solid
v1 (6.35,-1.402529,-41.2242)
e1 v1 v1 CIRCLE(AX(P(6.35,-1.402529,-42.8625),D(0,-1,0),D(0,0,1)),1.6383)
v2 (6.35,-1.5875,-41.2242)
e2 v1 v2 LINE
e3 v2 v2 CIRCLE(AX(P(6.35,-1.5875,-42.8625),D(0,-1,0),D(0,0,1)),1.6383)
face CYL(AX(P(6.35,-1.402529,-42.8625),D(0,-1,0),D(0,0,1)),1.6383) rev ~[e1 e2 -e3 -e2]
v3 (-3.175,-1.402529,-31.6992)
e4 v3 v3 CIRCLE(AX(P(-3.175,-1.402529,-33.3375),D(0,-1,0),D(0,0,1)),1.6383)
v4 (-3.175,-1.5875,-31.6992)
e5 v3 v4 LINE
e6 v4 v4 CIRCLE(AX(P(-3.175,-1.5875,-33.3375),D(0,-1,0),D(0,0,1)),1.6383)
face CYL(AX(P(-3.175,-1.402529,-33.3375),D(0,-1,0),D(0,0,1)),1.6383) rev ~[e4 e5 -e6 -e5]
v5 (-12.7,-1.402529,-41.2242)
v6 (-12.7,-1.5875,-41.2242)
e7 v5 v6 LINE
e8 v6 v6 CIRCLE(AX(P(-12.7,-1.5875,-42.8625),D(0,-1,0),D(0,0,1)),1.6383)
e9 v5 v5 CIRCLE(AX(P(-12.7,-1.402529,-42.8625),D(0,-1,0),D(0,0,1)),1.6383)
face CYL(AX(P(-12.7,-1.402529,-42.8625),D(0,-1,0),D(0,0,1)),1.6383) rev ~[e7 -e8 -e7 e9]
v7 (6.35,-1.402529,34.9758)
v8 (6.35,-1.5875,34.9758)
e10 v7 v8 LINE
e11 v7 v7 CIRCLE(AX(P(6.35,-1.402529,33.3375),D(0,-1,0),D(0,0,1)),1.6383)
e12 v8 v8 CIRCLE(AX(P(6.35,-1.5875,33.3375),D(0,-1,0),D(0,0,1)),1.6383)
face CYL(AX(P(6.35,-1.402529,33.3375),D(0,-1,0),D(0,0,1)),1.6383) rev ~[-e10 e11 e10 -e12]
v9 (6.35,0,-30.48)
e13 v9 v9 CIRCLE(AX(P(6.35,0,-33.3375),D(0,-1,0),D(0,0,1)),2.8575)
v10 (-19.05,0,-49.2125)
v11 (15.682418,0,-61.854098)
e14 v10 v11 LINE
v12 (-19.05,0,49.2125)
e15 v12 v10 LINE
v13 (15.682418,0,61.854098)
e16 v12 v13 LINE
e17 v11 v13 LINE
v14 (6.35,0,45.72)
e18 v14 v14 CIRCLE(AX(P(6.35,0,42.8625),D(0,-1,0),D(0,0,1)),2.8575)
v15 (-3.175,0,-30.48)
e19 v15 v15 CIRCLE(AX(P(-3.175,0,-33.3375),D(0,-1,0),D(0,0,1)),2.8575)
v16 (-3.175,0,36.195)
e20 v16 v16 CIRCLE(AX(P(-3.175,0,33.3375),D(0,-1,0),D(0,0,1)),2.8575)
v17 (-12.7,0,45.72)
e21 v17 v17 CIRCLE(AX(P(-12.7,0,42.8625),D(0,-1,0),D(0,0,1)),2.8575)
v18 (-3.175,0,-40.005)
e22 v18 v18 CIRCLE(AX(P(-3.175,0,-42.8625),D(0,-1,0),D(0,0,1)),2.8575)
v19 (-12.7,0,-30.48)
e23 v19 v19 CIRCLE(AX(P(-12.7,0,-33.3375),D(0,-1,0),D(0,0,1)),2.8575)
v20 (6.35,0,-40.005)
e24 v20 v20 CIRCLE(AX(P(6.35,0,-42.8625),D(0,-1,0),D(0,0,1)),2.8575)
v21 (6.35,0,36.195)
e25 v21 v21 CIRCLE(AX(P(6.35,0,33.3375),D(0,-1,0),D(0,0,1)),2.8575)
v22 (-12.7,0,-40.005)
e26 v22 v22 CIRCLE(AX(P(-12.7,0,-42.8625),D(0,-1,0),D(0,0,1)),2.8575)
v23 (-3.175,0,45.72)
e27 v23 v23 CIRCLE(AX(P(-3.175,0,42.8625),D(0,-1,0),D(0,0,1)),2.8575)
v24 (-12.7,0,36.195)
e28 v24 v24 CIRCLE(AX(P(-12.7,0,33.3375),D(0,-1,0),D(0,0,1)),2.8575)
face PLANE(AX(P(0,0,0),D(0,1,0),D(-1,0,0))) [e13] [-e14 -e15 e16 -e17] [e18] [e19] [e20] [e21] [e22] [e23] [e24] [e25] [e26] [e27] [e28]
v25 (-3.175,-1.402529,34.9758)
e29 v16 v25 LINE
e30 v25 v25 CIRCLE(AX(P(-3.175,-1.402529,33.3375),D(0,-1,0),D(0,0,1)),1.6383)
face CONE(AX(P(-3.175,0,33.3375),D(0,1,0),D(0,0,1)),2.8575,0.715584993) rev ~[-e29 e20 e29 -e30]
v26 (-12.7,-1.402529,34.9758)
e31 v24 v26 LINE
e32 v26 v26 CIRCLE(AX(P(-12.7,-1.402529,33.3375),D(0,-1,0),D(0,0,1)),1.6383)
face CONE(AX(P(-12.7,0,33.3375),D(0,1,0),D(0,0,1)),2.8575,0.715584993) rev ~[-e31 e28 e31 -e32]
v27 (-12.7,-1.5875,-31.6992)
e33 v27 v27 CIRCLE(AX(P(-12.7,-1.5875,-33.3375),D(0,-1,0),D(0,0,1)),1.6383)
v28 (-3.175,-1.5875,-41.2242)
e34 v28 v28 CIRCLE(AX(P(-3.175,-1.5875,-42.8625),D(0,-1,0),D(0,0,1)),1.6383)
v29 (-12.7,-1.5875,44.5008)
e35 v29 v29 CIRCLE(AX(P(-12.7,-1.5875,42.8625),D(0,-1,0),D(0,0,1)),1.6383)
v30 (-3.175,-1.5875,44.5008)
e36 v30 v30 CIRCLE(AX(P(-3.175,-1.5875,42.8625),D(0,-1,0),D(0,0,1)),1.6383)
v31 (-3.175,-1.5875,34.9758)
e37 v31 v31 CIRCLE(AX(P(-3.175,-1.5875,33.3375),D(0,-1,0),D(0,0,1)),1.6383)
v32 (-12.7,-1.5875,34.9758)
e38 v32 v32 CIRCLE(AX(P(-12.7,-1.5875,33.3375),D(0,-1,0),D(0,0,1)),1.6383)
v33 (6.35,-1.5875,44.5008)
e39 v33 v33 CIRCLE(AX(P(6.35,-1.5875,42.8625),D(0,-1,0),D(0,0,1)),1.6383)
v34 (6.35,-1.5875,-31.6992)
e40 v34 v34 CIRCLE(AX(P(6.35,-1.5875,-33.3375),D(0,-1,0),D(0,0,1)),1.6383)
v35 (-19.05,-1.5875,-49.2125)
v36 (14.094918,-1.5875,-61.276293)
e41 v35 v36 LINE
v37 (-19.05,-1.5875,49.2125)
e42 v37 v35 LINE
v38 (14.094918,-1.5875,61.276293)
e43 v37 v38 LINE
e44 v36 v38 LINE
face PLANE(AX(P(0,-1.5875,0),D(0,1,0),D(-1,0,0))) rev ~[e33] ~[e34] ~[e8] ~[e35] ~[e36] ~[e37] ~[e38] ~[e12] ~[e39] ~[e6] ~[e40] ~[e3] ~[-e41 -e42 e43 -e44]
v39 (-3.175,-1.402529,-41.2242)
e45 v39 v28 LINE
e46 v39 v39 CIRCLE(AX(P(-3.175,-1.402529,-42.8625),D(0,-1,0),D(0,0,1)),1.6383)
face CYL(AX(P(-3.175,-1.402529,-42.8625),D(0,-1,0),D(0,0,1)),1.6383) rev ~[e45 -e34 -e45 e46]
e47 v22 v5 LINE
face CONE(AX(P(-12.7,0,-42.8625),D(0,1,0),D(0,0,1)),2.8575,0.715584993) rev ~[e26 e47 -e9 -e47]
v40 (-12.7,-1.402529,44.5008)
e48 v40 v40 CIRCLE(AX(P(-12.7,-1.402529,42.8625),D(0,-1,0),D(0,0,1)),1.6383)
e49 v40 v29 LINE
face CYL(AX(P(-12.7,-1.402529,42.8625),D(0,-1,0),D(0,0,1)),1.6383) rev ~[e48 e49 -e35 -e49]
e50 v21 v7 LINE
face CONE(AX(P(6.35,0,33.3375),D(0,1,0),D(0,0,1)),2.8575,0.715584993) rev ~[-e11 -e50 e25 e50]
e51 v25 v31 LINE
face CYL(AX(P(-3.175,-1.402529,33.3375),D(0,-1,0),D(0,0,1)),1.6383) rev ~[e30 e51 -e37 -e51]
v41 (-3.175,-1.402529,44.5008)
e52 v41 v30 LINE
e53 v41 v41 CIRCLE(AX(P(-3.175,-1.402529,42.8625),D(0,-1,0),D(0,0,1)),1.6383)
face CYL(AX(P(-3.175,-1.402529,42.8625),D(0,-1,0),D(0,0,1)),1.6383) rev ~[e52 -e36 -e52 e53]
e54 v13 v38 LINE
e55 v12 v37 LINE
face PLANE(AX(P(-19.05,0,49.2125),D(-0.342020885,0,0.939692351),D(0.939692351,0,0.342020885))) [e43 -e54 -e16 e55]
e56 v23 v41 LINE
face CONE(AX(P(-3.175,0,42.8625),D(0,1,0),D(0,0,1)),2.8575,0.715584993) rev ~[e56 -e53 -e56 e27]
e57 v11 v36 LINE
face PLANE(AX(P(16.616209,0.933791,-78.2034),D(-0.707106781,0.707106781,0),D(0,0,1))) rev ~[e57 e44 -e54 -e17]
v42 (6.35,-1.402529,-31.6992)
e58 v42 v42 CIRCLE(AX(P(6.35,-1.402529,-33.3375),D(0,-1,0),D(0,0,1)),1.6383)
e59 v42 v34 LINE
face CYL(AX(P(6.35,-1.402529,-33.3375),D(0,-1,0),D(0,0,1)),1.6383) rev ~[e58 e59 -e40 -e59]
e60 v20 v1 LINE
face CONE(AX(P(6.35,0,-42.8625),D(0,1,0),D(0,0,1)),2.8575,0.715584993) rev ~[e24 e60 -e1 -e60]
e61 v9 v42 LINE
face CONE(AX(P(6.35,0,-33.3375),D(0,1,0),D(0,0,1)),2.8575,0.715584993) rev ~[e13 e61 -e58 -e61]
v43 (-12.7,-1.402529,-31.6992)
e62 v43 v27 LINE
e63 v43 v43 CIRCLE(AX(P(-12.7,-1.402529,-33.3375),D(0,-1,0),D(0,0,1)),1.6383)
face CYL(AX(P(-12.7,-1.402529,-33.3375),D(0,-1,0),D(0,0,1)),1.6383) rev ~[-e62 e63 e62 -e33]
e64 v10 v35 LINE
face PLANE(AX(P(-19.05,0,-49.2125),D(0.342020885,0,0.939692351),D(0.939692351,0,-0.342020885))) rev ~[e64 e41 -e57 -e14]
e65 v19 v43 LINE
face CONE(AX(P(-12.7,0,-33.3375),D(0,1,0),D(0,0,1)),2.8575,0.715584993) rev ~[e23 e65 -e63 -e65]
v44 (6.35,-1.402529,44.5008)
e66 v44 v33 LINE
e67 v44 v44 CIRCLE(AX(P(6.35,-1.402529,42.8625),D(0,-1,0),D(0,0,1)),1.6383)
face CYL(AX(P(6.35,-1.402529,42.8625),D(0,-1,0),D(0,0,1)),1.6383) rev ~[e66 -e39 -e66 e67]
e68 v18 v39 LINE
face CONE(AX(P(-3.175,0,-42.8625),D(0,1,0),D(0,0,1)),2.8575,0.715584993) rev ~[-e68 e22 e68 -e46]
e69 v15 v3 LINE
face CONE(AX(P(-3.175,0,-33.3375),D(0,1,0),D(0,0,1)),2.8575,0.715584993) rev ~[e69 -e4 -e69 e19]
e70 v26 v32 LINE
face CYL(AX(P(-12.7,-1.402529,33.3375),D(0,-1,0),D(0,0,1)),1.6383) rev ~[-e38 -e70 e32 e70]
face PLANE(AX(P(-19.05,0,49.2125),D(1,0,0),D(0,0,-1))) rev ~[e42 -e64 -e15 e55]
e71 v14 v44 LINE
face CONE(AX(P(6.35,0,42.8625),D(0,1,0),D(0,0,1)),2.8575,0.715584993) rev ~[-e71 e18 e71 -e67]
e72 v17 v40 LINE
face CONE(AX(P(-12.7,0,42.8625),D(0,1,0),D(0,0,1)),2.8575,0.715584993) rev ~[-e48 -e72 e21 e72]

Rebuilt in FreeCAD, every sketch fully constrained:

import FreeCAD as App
import Part
import Sketcher
from FreeCAD import Vector
Q = App.Units.Quantity


def add_polygon(sketch, points):
    """Adds a closed chain of lines whose ends are joined by coincident constraints."""
    first, n = sketch.GeometryCount, len(points)
    for a, b in zip(points, points[1:] + points[:1]):
        sketch.addGeometry(Part.LineSegment(App.Vector(*a, 0), App.Vector(*b, 0)), False)
    for i in range(n):
        sketch.addConstraint(Sketcher.Constraint("Coincident", first + i, 2, first + (i + 1) % n, 1))

doc = App.newDocument("Part")
body = doc.addObject("PartDesign::Body", "Body")

# Sketch on XZ plane
sketch1 = body.newObject("Sketcher::SketchObject", "Sketch")
sketch1.AttachmentSupport = (doc.getObject("XZ_Plane"), [""])
sketch1.MapMode = "FlatFace"
add_polygon(sketch1, [(19, 63), (19, -63), (-19, -49), (-19, 49)])  # lines 0-3
sketch1.addConstraint(Sketcher.Constraint("Vertical", 0))
sketch1.addConstraint(Sketcher.Constraint("Vertical", 2))
sketch1.addConstraint(Sketcher.Constraint("Equal", 1, 3))
sketch1.addConstraint(Sketcher.Constraint("Angle", 3, Q("20 deg")))
sketch1.addConstraint(Sketcher.Constraint("DistanceX", 1, 2, 0, 2, Q("1.5 in")))
sketch1.addConstraint(Sketcher.Constraint("DistanceY", 2, 1, 2, 2, Q("3.875 in")))
sketch1.addConstraint(Sketcher.Constraint("DistanceX", -1, 1, 0, 2, Q("0.75 in")))
sketch1.addConstraint(Sketcher.Constraint("DistanceY", 1, 2, -1, 1, Q("1.9375 in")))
pad1 = body.newObject("PartDesign::Pad", "Pad")
pad1.Profile = sketch1
pad1.Length = Q("0.0625 in")

# Sketch on an angled plane
sketch2 = body.newObject("Sketcher::SketchObject", "Sketch001")
sketch2.Placement = App.Placement(Vector(19.05, -1.5, 88.9), App.Rotation(Vector(0, 0, 1), Vector(-0.707106781, 0.707106781, 0), Vector(-0.707106781, -0.707106781, 0), "ZXY"))
add_polygon(sketch2, [(-11, -24), (-11, 3), (-167, 3), (-167, -24)])  # lines 0-3
sketch2.addConstraint(Sketcher.Constraint("Vertical", 0))
sketch2.addConstraint(Sketcher.Constraint("Horizontal", 1))
sketch2.addConstraint(Sketcher.Constraint("Vertical", 2))
sketch2.addConstraint(Sketcher.Constraint("Horizontal", 3))
sketch2.addConstraint(Sketcher.Constraint("DistanceY", 0, 1, 0, 2, Q("1.093748 in")))
sketch2.addConstraint(Sketcher.Constraint("DistanceX", 1, 2, 1, 1, Q("156.4068 mm")))
sketch2.addConstraint(Sketcher.Constraint("DistanceY", -1, 1, 0, 2, Q("0.1355 in")))
sketch2.addConstraint(Sketcher.Constraint("DistanceX", 0, 2, -1, 1, Q("10.6966 mm")))
pocket1 = body.newObject("PartDesign::Pocket", "Pocket")
pocket1.Profile = sketch2
pocket1.Type = "ThroughAll"
pocket1.Midplane = True

# Sketch on XZ plane
sketch3 = body.newObject("Sketcher::SketchObject", "Sketch002")
sketch3.AttachmentSupport = (doc.getObject("XZ_Plane"), [""])
sketch3.MapMode = "FlatFace"
sketch3.addGeometry(Part.Circle(Vector(-12.7, 42.9, 0), Vector(0, 0, 1), 1.6), False)
sketch3.addGeometry(Part.Circle(Vector(-3.2, 42.9, 0), Vector(0, 0, 1), 1.6), False)
sketch3.addGeometry(Part.Circle(Vector(6.3, 42.9, 0), Vector(0, 0, 1), 1.6), False)
sketch3.addGeometry(Part.Circle(Vector(-12.7, 33.3, 0), Vector(0, 0, 1), 1.6), False)
sketch3.addGeometry(Part.Circle(Vector(-3.2, 33.3, 0), Vector(0, 0, 1), 1.6), False)
sketch3.addGeometry(Part.Circle(Vector(6.3, 33.3, 0), Vector(0, 0, 1), 1.6), False)
sketch3.addGeometry(Part.Circle(Vector(6.3, -33.3, 0), Vector(0, 0, 1), 1.6), False)
sketch3.addGeometry(Part.Circle(Vector(-3.2, -33.3, 0), Vector(0, 0, 1), 1.6), False)
sketch3.addGeometry(Part.Circle(Vector(-12.7, -33.3, 0), Vector(0, 0, 1), 1.6), False)
sketch3.addGeometry(Part.Circle(Vector(6.3, -42.9, 0), Vector(0, 0, 1), 1.6), False)
sketch3.addGeometry(Part.Circle(Vector(-3.2, -42.9, 0), Vector(0, 0, 1), 1.6), False)
sketch3.addGeometry(Part.Circle(Vector(-12.7, -42.9, 0), Vector(0, 0, 1), 1.6), False)
sketch3.addConstraint(Sketcher.Constraint("Equal", 0, 1))
sketch3.addConstraint(Sketcher.Constraint("Equal", 1, 2))
sketch3.addConstraint(Sketcher.Constraint("Equal", 2, 3))
sketch3.addConstraint(Sketcher.Constraint("Equal", 3, 4))
sketch3.addConstraint(Sketcher.Constraint("Equal", 4, 5))
sketch3.addConstraint(Sketcher.Constraint("Equal", 5, 6))
sketch3.addConstraint(Sketcher.Constraint("Equal", 6, 7))
sketch3.addConstraint(Sketcher.Constraint("Equal", 7, 8))
sketch3.addConstraint(Sketcher.Constraint("Equal", 8, 9))
sketch3.addConstraint(Sketcher.Constraint("Equal", 9, 10))
sketch3.addConstraint(Sketcher.Constraint("Equal", 10, 11))
sketch3.addConstraint(Sketcher.Constraint("Symmetric", 5, 3, 6, 3, -1))
sketch3.addConstraint(Sketcher.Constraint("Symmetric", 4, 3, 7, 3, -1))
sketch3.addConstraint(Sketcher.Constraint("Symmetric", 3, 3, 8, 3, -1))
sketch3.addConstraint(Sketcher.Constraint("Symmetric", 2, 3, 9, 3, -1))
sketch3.addConstraint(Sketcher.Constraint("Symmetric", 1, 3, 10, 3, -1))
sketch3.addConstraint(Sketcher.Constraint("Symmetric", 0, 3, 11, 3, -1))
sketch3.addConstraint(Sketcher.Constraint("Horizontal", 0, 3, 1, 3))
sketch3.addConstraint(Sketcher.Constraint("Horizontal", 1, 3, 2, 3))
sketch3.addConstraint(Sketcher.Constraint("Horizontal", 3, 3, 4, 3))
sketch3.addConstraint(Sketcher.Constraint("Horizontal", 4, 3, 5, 3))
sketch3.addConstraint(Sketcher.Constraint("Vertical", 0, 3, 3, 3))
sketch3.addConstraint(Sketcher.Constraint("Vertical", 1, 3, 4, 3))
sketch3.addConstraint(Sketcher.Constraint("Vertical", 2, 3, 5, 3))
sketch3.addConstraint(Sketcher.Constraint("Diameter", 0, Q("0.129 in")))
sketch3.addConstraint(Sketcher.Constraint("DistanceY", 6, 3, 2, 3, Q("3 in")))
sketch3.addConstraint(Sketcher.Constraint("DistanceX", 0, 3, -1, 1, Q("0.5 in")))
sketch3.addConstraint(Sketcher.Constraint("DistanceX", -1, 1, 2, 3, Q("0.25 in")))
sketch3.addConstraint(Sketcher.Constraint("DistanceY", -1, 1, 0, 3, Q("1.6875 in")))
sketch3.addConstraint(Sketcher.Constraint("DistanceX", 1, 3, -1, 1, Q("0.125 in")))
doc.recompute()
hole = body.newObject("PartDesign::Hole", "Hole")
hole.Profile = sketch3
hole.ThreadType = "None"
hole.Diameter = Q("0.129 in")
hole.DepthType = "ThroughAll"
hole.HoleCutType = "Countersink"
hole.HoleCutDiameter = Q("0.225 in")
hole.HoleCutCountersinkAngle = 82
hole.Reversed = True

doc.recompute()
